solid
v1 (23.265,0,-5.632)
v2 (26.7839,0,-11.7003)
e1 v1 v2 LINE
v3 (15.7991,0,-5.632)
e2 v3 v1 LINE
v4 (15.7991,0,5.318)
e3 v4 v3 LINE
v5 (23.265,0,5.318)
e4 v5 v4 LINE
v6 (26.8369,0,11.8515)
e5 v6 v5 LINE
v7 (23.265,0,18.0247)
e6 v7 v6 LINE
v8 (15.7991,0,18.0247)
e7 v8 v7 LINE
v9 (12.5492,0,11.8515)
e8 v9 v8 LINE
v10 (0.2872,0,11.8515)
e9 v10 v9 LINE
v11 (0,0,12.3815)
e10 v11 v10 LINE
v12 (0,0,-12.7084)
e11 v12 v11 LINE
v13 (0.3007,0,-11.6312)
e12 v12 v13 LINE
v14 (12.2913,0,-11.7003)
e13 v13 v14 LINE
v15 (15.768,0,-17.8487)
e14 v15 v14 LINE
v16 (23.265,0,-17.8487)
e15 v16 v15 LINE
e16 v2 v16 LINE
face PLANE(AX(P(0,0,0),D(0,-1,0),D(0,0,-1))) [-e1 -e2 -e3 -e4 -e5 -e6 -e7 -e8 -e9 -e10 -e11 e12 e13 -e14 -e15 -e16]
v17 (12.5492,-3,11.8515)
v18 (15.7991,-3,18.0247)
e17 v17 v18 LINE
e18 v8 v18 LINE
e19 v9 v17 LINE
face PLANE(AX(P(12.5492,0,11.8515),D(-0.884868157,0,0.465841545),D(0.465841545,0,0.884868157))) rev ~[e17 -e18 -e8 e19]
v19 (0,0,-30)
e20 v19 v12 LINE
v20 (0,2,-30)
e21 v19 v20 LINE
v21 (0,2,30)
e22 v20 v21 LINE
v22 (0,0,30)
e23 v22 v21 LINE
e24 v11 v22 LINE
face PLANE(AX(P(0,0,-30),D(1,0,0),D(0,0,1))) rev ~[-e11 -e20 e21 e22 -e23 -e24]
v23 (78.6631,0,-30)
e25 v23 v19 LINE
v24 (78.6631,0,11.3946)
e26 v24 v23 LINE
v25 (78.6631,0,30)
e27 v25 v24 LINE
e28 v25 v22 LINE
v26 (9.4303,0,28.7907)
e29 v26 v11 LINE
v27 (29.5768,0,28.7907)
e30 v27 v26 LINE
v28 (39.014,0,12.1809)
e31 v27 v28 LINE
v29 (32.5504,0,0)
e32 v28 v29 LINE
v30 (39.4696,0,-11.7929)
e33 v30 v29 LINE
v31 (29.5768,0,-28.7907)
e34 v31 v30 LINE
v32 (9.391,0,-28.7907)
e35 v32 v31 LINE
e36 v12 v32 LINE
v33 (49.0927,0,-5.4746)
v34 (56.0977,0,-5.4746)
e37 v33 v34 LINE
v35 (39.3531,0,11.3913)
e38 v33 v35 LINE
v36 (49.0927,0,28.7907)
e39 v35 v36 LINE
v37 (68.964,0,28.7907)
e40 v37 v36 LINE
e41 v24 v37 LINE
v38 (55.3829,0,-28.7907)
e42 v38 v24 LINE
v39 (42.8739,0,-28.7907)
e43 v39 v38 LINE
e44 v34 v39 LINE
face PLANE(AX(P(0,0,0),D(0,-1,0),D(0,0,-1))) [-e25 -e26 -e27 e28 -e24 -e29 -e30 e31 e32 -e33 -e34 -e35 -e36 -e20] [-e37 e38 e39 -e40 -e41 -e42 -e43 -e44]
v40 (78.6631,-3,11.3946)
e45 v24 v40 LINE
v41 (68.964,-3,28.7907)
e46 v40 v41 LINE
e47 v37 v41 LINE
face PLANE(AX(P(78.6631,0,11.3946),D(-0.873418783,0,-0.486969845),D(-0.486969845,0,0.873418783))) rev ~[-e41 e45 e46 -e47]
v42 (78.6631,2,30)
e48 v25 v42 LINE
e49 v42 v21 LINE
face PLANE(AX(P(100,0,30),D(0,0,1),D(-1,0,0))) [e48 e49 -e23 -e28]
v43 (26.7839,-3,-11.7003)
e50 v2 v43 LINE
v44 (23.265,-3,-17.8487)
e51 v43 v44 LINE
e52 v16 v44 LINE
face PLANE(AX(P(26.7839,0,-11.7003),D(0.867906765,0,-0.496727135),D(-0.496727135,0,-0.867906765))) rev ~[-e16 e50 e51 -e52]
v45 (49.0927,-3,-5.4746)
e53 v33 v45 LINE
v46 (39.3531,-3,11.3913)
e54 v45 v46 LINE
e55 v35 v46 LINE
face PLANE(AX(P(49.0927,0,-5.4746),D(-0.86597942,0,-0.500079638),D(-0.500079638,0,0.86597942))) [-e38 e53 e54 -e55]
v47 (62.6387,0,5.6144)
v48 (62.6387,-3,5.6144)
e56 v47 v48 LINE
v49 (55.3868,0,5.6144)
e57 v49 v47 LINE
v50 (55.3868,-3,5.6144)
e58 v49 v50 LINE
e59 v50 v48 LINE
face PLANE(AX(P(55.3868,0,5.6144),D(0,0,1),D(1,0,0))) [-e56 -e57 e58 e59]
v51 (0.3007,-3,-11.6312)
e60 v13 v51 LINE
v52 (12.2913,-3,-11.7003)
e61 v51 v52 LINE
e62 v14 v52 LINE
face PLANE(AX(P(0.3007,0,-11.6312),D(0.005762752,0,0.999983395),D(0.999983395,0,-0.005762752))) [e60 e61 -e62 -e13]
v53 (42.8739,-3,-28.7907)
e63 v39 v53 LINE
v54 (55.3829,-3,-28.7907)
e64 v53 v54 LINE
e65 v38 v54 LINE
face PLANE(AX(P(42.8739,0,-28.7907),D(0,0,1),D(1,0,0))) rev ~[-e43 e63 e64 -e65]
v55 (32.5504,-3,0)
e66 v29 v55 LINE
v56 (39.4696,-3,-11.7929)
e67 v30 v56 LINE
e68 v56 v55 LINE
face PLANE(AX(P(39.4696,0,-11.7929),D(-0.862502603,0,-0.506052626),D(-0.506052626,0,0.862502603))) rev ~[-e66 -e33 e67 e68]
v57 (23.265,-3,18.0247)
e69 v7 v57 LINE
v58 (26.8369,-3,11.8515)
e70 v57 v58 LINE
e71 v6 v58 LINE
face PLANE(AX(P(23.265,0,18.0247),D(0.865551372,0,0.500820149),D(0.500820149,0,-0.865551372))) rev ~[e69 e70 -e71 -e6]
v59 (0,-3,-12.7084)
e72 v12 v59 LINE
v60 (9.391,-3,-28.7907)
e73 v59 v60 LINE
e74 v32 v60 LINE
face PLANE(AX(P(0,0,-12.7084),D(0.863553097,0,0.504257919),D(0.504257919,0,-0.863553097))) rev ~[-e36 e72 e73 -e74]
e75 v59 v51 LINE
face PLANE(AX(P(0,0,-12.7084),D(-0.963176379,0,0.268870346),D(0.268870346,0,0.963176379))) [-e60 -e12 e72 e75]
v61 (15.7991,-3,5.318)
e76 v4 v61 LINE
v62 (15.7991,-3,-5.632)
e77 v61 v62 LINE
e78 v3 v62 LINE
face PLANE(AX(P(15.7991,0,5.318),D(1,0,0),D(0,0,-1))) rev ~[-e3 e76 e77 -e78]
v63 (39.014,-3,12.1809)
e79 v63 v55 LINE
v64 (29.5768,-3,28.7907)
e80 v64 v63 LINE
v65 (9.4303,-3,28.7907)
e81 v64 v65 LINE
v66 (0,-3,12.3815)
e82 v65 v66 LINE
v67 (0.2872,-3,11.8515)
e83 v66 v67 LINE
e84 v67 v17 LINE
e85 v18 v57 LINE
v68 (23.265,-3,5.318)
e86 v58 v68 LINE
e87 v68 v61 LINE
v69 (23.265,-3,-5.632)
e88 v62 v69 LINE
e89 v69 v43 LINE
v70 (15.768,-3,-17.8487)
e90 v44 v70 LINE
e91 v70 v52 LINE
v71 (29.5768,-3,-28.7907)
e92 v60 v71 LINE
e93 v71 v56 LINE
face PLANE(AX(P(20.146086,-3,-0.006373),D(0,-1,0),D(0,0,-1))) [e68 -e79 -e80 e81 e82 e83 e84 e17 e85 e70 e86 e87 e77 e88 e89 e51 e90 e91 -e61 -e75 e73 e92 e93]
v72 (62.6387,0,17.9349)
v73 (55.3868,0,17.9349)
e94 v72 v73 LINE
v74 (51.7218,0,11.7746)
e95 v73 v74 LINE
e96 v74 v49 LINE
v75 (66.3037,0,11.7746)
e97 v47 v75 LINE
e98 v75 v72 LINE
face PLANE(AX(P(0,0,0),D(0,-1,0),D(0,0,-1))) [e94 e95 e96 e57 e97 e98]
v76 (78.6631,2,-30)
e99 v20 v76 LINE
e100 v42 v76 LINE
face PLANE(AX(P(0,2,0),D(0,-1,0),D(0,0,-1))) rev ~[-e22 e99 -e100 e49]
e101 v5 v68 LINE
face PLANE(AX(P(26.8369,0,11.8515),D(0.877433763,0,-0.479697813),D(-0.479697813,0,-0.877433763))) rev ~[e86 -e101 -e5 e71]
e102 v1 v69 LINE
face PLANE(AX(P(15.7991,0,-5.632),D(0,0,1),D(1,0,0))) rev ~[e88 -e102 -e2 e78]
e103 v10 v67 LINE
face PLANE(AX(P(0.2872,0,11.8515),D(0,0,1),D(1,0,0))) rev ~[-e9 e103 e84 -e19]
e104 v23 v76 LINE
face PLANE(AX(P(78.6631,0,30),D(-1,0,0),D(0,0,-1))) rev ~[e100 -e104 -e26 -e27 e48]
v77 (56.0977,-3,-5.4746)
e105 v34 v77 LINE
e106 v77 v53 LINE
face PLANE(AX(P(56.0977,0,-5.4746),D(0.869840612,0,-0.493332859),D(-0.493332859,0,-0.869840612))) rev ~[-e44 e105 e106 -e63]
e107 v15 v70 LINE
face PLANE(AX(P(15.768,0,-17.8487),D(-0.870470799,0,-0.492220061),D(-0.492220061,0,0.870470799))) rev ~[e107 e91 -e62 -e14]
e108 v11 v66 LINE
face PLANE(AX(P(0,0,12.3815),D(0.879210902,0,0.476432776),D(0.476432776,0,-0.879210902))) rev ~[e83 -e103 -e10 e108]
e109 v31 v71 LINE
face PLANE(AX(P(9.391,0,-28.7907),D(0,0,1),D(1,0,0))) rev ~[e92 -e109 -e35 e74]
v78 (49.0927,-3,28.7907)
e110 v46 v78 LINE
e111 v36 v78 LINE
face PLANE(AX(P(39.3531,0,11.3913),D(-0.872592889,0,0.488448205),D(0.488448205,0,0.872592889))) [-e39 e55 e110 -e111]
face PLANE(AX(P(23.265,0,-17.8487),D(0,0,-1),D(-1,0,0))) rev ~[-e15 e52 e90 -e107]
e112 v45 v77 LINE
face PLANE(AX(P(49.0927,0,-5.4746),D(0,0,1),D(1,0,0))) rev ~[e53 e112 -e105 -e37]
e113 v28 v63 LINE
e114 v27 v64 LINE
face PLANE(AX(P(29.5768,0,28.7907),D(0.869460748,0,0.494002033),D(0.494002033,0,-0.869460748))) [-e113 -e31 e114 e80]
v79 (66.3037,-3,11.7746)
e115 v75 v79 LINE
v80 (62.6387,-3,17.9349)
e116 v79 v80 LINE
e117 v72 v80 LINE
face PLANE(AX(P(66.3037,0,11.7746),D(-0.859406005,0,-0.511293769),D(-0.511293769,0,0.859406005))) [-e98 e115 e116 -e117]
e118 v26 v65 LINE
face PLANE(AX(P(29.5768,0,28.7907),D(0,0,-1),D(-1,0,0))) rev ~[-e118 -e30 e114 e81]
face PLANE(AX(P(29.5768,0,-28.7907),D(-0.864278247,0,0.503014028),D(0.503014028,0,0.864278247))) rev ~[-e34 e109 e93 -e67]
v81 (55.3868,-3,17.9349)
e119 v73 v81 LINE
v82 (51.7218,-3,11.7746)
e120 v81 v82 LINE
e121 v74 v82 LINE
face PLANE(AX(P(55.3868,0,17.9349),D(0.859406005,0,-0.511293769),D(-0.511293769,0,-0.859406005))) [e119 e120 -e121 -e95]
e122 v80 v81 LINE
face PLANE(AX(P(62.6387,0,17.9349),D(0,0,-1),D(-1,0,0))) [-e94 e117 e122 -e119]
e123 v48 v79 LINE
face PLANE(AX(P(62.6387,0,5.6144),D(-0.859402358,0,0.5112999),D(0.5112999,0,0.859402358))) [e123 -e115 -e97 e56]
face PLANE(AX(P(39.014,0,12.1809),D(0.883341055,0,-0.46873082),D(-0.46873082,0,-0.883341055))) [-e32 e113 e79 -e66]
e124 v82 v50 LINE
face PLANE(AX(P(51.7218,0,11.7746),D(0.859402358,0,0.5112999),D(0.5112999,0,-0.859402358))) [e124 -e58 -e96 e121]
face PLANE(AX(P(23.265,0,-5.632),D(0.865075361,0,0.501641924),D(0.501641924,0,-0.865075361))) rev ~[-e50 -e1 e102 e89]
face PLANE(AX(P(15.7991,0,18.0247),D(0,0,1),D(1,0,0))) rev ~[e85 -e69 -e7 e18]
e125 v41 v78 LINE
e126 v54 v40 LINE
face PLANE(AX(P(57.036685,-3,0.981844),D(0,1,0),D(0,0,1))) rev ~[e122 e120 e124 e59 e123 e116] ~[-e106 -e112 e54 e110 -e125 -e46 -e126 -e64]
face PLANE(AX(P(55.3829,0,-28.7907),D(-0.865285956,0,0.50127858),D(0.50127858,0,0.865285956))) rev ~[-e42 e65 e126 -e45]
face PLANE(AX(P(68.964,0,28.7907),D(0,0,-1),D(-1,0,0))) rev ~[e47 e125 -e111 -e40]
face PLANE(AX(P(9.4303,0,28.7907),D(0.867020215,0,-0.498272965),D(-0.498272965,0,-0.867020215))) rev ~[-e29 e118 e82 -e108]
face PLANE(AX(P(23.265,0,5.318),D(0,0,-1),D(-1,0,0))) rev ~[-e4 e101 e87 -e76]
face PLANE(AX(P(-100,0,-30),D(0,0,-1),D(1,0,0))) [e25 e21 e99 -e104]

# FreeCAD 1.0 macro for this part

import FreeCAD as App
import Part
import Sketcher

doc = App.newDocument("Part")
params = doc.addObject("Spreadsheet::Sheet", "Params")
for row, (alias, value) in enumerate([
    ("sketch1_height", "60 mm"),
    ("pad1_length", "2 mm"),
    ("sketch2_height", "10.95 mm"),
    ("sketch2_length", "0.48 mm"),
    ("sketch2_length2", "19.94 mm"),
    ("sketch2_length3", "13.0199 mm"),
    ("pad2_length", "3 mm"),
    ("sketch3_width", "100 mm"),
    ("sketch3_height", "60 mm"),
    ("pocket1_length", "52.8721 mm"),
    ("sketch4_width", "100 mm"),
    ("sketch4_height", "60 mm"),
    ("pocket2_length", "13.1606 mm"),
], start=1):
    params.set(f"A{row}", alias)
    params.set(f"B{row}", "=" + value)
    params.setAlias(f"B{row}", alias)

body = doc.addObject("PartDesign::Body", "Body")

# Sketch on XZ plane
sketch1 = doc.addObject("Sketcher::SketchObject", "Sketch")
body.addObject(sketch1)
sketch1.AttachmentSupport = (doc.XZ_Plane, [""])
sketch1.MapMode = "FlatFace"
sketch1.addGeometry(Part.LineSegment(App.Vector(-100, 30, 0), App.Vector(-100, -30, 0)), False)
sketch1.addGeometry(Part.LineSegment(App.Vector(-100, -30, 0), App.Vector(100, -30, 0)), False)
sketch1.addGeometry(Part.LineSegment(App.Vector(100, -30, 0), App.Vector(100, 30, 0)), False)
sketch1.addGeometry(Part.LineSegment(App.Vector(100, 30, 0), App.Vector(-100, 30, 0)), False)
sketch1.addConstraint(Sketcher.Constraint("Coincident", 0, 2, 1, 1))
sketch1.addConstraint(Sketcher.Constraint("Coincident", 1, 2, 2, 1))
sketch1.addConstraint(Sketcher.Constraint("Coincident", 2, 2, 3, 1))
sketch1.addConstraint(Sketcher.Constraint("Coincident", 3, 2, 0, 1))
sketch1.addConstraint(Sketcher.Constraint("Vertical", 0))
sketch1.addConstraint(Sketcher.Constraint("Horizontal", 1))
sketch1.addConstraint(Sketcher.Constraint("Vertical", 2))
sketch1.addConstraint(Sketcher.Constraint("Horizontal", 3))
sketch1.addConstraint(Sketcher.Constraint("Symmetric", 0, 2, 2, 2, -1, 1))
sketch1.addConstraint(Sketcher.Constraint("DistanceX", 0, 2, -1, 1, 100.0))
sketch1.addConstraint(Sketcher.Constraint("DistanceY", 0, 2, 0, 1, 60.0))
sketch1.setExpression("Constraints[10]", "Params.sketch1_height")
pad1 = doc.addObject("PartDesign::Pad", "Pad")
body.addObject(pad1)
pad1.Profile = sketch1
pad1.setExpression("Length", "Params.pad1_length")
pad1.Reversed = True

# Sketch on XZ plane
sketch2 = doc.addObject("Sketcher::SketchObject", "Sketch001")
body.addObject(sketch2)
sketch2.AttachmentSupport = (doc.XZ_Plane, [""])
sketch2.MapMode = "FlatFace"
sketch2.addGeometry(Part.LineSegment(App.Vector(-45.6448, 0, 0), App.Vector(-39.6222, 11.5432, 0)), False)
sketch2.addGeometry(Part.LineSegment(App.Vector(-39.6222, 11.5432, 0), App.Vector(-48.7647, 28.7907, 0)), False)
sketch2.addGeometry(Part.LineSegment(App.Vector(-48.7647, 28.7907, 0), App.Vector(-68.9181, 28.7907, 0)), False)
sketch2.addGeometry(Part.LineSegment(App.Vector(-68.9181, 28.7907, 0), App.Vector(-78.6631, 12.1124, 0)), False)
sketch2.addGeometry(Part.LineSegment(App.Vector(-78.6631, 12.1124, 0), App.Vector(-65.8971, 12.1124, 0)), False)
sketch2.addGeometry(Part.LineSegment(App.Vector(-65.8971, 12.1124, 0), App.Vector(-62.8688, 18.0634, 0)), False)
sketch2.addGeometry(Part.LineSegment(App.Vector(-62.8688, 18.0634, 0), App.Vector(-55.6447, 18.0634, 0)), False)
sketch2.addGeometry(Part.LineSegment(App.Vector(-55.6447, 18.0634, 0), App.Vector(-51.8394, 12.1124, 0)), False)
sketch2.addGeometry(Part.LineSegment(App.Vector(-51.8394, 12.1124, 0), App.Vector(-55.6447, 5.4911, 0)), False)
sketch2.addGeometry(Part.LineSegment(App.Vector(-55.6447, 5.4911, 0), App.Vector(-62.8688, 5.4911, 0)), False)
sketch2.addGeometry(Part.LineSegment(App.Vector(-62.8688, 5.4911, 0), App.Vector(-62.8688, -5.6236, 0)), False)
sketch2.addGeometry(Part.LineSegment(App.Vector(-62.8688, -5.6236, 0), App.Vector(-55.2147, -5.6236, 0)), False)
sketch2.addGeometry(Part.LineSegment(App.Vector(-55.2147, -5.6236, 0), App.Vector(-51.8394, -11.6625, 0)), False)
sketch2.addGeometry(Part.LineSegment(App.Vector(-51.8394, -11.6625, 0), App.Vector(-55.2147, -18.0171, 0)), False)
sketch2.addGeometry(Part.LineSegment(App.Vector(-55.2147, -18.0171, 0), App.Vector(-62.8688, -18.0171, 0)), False)
sketch2.addGeometry(Part.LineSegment(App.Vector(-62.8688, -18.0171, 0), App.Vector(-65.8971, -11.6625, 0)), False)
sketch2.addGeometry(Part.LineSegment(App.Vector(-65.8971, -11.6625, 0), App.Vector(-78.6631, -11.6625, 0)), False)
sketch2.addGeometry(Part.LineSegment(App.Vector(-78.6631, -11.6625, 0), App.Vector(-68.9922, -28.7907, 0)), False)
sketch2.addGeometry(Part.LineSegment(App.Vector(-68.9922, -28.7907, 0), App.Vector(-48.7647, -28.7907, 0)), False)
sketch2.addGeometry(Part.LineSegment(App.Vector(-48.7647, -28.7907, 0), App.Vector(-39.6222, -12.3974, 0)), False)
sketch2.addGeometry(Part.LineSegment(App.Vector(-39.6222, -12.3974, 0), App.Vector(-45.6448, 0, 0)), False)
sketch2.addGeometry(Part.LineSegment(App.Vector(-9.9734, 28.7907, 0), App.Vector(-29.8239, 28.7907, 0)), False)
sketch2.addGeometry(Part.LineSegment(App.Vector(-29.8239, 28.7907, 0), App.Vector(-39.0136, 11.3404, 0)), False)
sketch2.addGeometry(Part.LineSegment(App.Vector(-39.0136, 11.3404, 0), App.Vector(-27.2051, 11.3404, 0)), False)
sketch2.addGeometry(Part.LineSegment(App.Vector(-27.2051, 11.3404, 0), App.Vector(-23.5794, 17.7709, 0)), False)
sketch2.addGeometry(Part.LineSegment(App.Vector(-23.5794, 17.7709, 0), App.Vector(-16.2069, 17.7709, 0)), False)
sketch2.addGeometry(Part.LineSegment(App.Vector(-16.2069, 17.7709, 0), App.Vector(-12.7725, 11.3404, 0)), False)
sketch2.addGeometry(Part.LineSegment(App.Vector(-12.7725, 11.3404, 0), App.Vector(-16.2069, 5.3584, 0)), False)
sketch2.addGeometry(Part.LineSegment(App.Vector(-16.2069, 5.3584, 0), App.Vector(-23.5794, 5.3584, 0)), False)
sketch2.addGeometry(Part.LineSegment(App.Vector(-23.5794, 5.3584, 0), App.Vector(-23.5794, -5.3744, 0)), False)
sketch2.addGeometry(Part.LineSegment(App.Vector(-23.5794, -5.3744, 0), App.Vector(-16.2069, -5.3744, 0)), False)
sketch2.addGeometry(Part.LineSegment(App.Vector(-16.2069, -5.3744, 0), App.Vector(-12.7725, -11.9215, 0)), False)
sketch2.addGeometry(Part.LineSegment(App.Vector(-12.7725, -11.9215, 0), App.Vector(-16.2069, -18.0364, 0)), False)
sketch2.addGeometry(Part.LineSegment(App.Vector(-16.2069, -18.0364, 0), App.Vector(-23.5794, -18.0364, 0)), False)
sketch2.addGeometry(Part.LineSegment(App.Vector(-23.5794, -18.0364, 0), App.Vector(-27.2051, -11.9215, 0)), False)
sketch2.addGeometry(Part.LineSegment(App.Vector(-27.2051, -11.9215, 0), App.Vector(-39.0832, -11.9215, 0)), False)
sketch2.addGeometry(Part.LineSegment(App.Vector(-39.0832, -11.9215, 0), App.Vector(-39.0211, -12.3974, 0)), False)
sketch2.addGeometry(Part.LineSegment(App.Vector(-39.0211, -12.3974, 0), App.Vector(-29.8416, -28.7907, 0)), False)
sketch2.addGeometry(Part.LineSegment(App.Vector(-29.8416, -28.7907, 0), App.Vector(-9.9734, -28.7907, 0)), False)
sketch2.addGeometry(Part.LineSegment(App.Vector(-9.9734, -28.7907, 0), App.Vector(0, -11.7929, 0)), False)
sketch2.addGeometry(Part.LineSegment(App.Vector(0, -11.7929, 0), App.Vector(-6.8407, 0, 0)), False)
sketch2.addGeometry(Part.LineSegment(App.Vector(-6.8407, 0, 0), App.Vector(0, 11.8515, 0)), False)
sketch2.addGeometry(Part.LineSegment(App.Vector(0, 11.8515, 0), App.Vector(-9.9734, 28.7907, 0)), False)
sketch2.addGeometry(Part.LineSegment(App.Vector(29.5768, 28.7907, 0), App.Vector(9.4303, 28.7907, 0)), False)
sketch2.addGeometry(Part.LineSegment(App.Vector(9.4303, 28.7907, 0), App.Vector(0, 12.3815, 0)), False)
sketch2.addGeometry(Part.LineSegment(App.Vector(0, 12.3815, 0), App.Vector(0.2872, 11.8515, 0)), False)
sketch2.addGeometry(Part.LineSegment(App.Vector(0.2872, 11.8515, 0), App.Vector(12.5492, 11.8515, 0)), False)
sketch2.addGeometry(Part.LineSegment(App.Vector(12.5492, 11.8515, 0), App.Vector(15.7991, 18.0247, 0)), False)
sketch2.addGeometry(Part.LineSegment(App.Vector(15.7991, 18.0247, 0), App.Vector(23.265, 18.0247, 0)), False)
sketch2.addGeometry(Part.LineSegment(App.Vector(23.265, 18.0247, 0), App.Vector(26.8369, 11.8515, 0)), False)
sketch2.addGeometry(Part.LineSegment(App.Vector(26.8369, 11.8515, 0), App.Vector(23.265, 5.318, 0)), False)
sketch2.addGeometry(Part.LineSegment(App.Vector(23.265, 5.318, 0), App.Vector(15.7991, 5.318, 0)), False)
sketch2.addGeometry(Part.LineSegment(App.Vector(15.7991, 5.318, 0), App.Vector(15.7991, -5.632, 0)), False)
sketch2.addGeometry(Part.LineSegment(App.Vector(15.7991, -5.632, 0), App.Vector(23.265, -5.632, 0)), False)
sketch2.addGeometry(Part.LineSegment(App.Vector(23.265, -5.632, 0), App.Vector(26.7839, -11.7003, 0)), False)
sketch2.addGeometry(Part.LineSegment(App.Vector(26.7839, -11.7003, 0), App.Vector(23.265, -17.8487, 0)), False)
sketch2.addGeometry(Part.LineSegment(App.Vector(23.265, -17.8487, 0), App.Vector(15.768, -17.8487, 0)), False)
sketch2.addGeometry(Part.LineSegment(App.Vector(15.768, -17.8487, 0), App.Vector(12.2913, -11.7003, 0)), False)
sketch2.addGeometry(Part.LineSegment(App.Vector(12.2913, -11.7003, 0), App.Vector(0.3007, -11.6312, 0)), False)
sketch2.addGeometry(Part.LineSegment(App.Vector(0.3007, -11.6312, 0), App.Vector(0, -12.7084, 0)), False)
sketch2.addGeometry(Part.LineSegment(App.Vector(0, -12.7084, 0), App.Vector(9.391, -28.7907, 0)), False)
sketch2.addGeometry(Part.LineSegment(App.Vector(9.391, -28.7907, 0), App.Vector(29.5768, -28.7907, 0)), False)
sketch2.addGeometry(Part.LineSegment(App.Vector(29.5768, -28.7907, 0), App.Vector(39.4696, -11.7929, 0)), False)
sketch2.addGeometry(Part.LineSegment(App.Vector(39.4696, -11.7929, 0), App.Vector(32.5504, 0, 0)), False)
sketch2.addGeometry(Part.LineSegment(App.Vector(32.5504, 0, 0), App.Vector(39.014, 12.1809, 0)), False)
sketch2.addGeometry(Part.LineSegment(App.Vector(39.014, 12.1809, 0), App.Vector(29.5768, 28.7907, 0)), False)
sketch2.addGeometry(Part.LineSegment(App.Vector(49.0927, 28.7907, 0), App.Vector(39.3531, 11.3913, 0)), False)
sketch2.addGeometry(Part.LineSegment(App.Vector(39.3531, 11.3913, 0), App.Vector(49.0927, -5.4746, 0)), False)
sketch2.addGeometry(Part.LineSegment(App.Vector(49.0927, -5.4746, 0), App.Vector(56.0977, -5.4746, 0)), False)
sketch2.addGeometry(Part.LineSegment(App.Vector(56.0977, -5.4746, 0), App.Vector(42.8739, -28.7907, 0)), False)
sketch2.addGeometry(Part.LineSegment(App.Vector(42.8739, -28.7907, 0), App.Vector(55.3829, -28.7907, 0)), False)
sketch2.addGeometry(Part.LineSegment(App.Vector(55.3829, -28.7907, 0), App.Vector(78.6631, 11.3946, 0)), False)
sketch2.addGeometry(Part.LineSegment(App.Vector(78.6631, 11.3946, 0), App.Vector(68.964, 28.7907, 0)), False)
sketch2.addGeometry(Part.LineSegment(App.Vector(68.964, 28.7907, 0), App.Vector(49.0927, 28.7907, 0)), False)
sketch2.addGeometry(Part.LineSegment(App.Vector(55.3868, 5.6144, 0), App.Vector(51.7218, 11.7746, 0)), False)
sketch2.addGeometry(Part.LineSegment(App.Vector(51.7218, 11.7746, 0), App.Vector(55.3868, 17.9349, 0)), False)
sketch2.addGeometry(Part.LineSegment(App.Vector(55.3868, 17.9349, 0), App.Vector(62.6387, 17.9349, 0)), False)
sketch2.addGeometry(Part.LineSegment(App.Vector(62.6387, 17.9349, 0), App.Vector(66.3037, 11.7746, 0)), False)
sketch2.addGeometry(Part.LineSegment(App.Vector(66.3037, 11.7746, 0), App.Vector(62.6387, 5.6144, 0)), False)
sketch2.addGeometry(Part.LineSegment(App.Vector(62.6387, 5.6144, 0), App.Vector(55.3868, 5.6144, 0)), False)
sketch2.addConstraint(Sketcher.Constraint("Coincident", 0, 2, 1, 1))
sketch2.addConstraint(Sketcher.Constraint("Coincident", 1, 2, 2, 1))
sketch2.addConstraint(Sketcher.Constraint("Coincident", 2, 2, 3, 1))
sketch2.addConstraint(Sketcher.Constraint("Coincident", 3, 2, 4, 1))
sketch2.addConstraint(Sketcher.Constraint("Coincident", 4, 2, 5, 1))
sketch2.addConstraint(Sketcher.Constraint("Coincident", 5, 2, 6, 1))
sketch2.addConstraint(Sketcher.Constraint("Coincident", 6, 2, 7, 1))
sketch2.addConstraint(Sketcher.Constraint("Coincident", 7, 2, 8, 1))
sketch2.addConstraint(Sketcher.Constraint("Coincident", 8, 2, 9, 1))
sketch2.addConstraint(Sketcher.Constraint("Coincident", 9, 2, 10, 1))
sketch2.addConstraint(Sketcher.Constraint("Coincident", 10, 2, 11, 1))
sketch2.addConstraint(Sketcher.Constraint("Coincident", 11, 2, 12, 1))
sketch2.addConstraint(Sketcher.Constraint("Coincident", 12, 2, 13, 1))
sketch2.addConstraint(Sketcher.Constraint("Coincident", 13, 2, 14, 1))
sketch2.addConstraint(Sketcher.Constraint("Coincident", 14, 2, 15, 1))
sketch2.addConstraint(Sketcher.Constraint("Coincident", 15, 2, 16, 1))
sketch2.addConstraint(Sketcher.Constraint("Coincident", 16, 2, 17, 1))
sketch2.addConstraint(Sketcher.Constraint("Coincident", 17, 2, 18, 1))
sketch2.addConstraint(Sketcher.Constraint("Coincident", 18, 2, 19, 1))
sketch2.addConstraint(Sketcher.Constraint("Coincident", 19, 2, 20, 1))
sketch2.addConstraint(Sketcher.Constraint("Coincident", 20, 2, 0, 1))
sketch2.addConstraint(Sketcher.Constraint("Coincident", 21, 2, 22, 1))
sketch2.addConstraint(Sketcher.Constraint("Coincident", 22, 2, 23, 1))
sketch2.addConstraint(Sketcher.Constraint("Coincident", 23, 2, 24, 1))
sketch2.addConstraint(Sketcher.Constraint("Coincident", 24, 2, 25, 1))
sketch2.addConstraint(Sketcher.Constraint("Coincident", 25, 2, 26, 1))
sketch2.addConstraint(Sketcher.Constraint("Coincident", 26, 2, 27, 1))
sketch2.addConstraint(Sketcher.Constraint("Coincident", 27, 2, 28, 1))
sketch2.addConstraint(Sketcher.Constraint("Coincident", 28, 2, 29, 1))
sketch2.addConstraint(Sketcher.Constraint("Coincident", 29, 2, 30, 1))
sketch2.addConstraint(Sketcher.Constraint("Coincident", 30, 2, 31, 1))
sketch2.addConstraint(Sketcher.Constraint("Coincident", 31, 2, 32, 1))
sketch2.addConstraint(Sketcher.Constraint("Coincident", 32, 2, 33, 1))
sketch2.addConstraint(Sketcher.Constraint("Coincident", 33, 2, 34, 1))
sketch2.addConstraint(Sketcher.Constraint("Coincident", 34, 2, 35, 1))
sketch2.addConstraint(Sketcher.Constraint("Coincident", 35, 2, 36, 1))
sketch2.addConstraint(Sketcher.Constraint("Coincident", 36, 2, 37, 1))
sketch2.addConstraint(Sketcher.Constraint("Coincident", 37, 2, 38, 1))
sketch2.addConstraint(Sketcher.Constraint("Coincident", 38, 2, 39, 1))
sketch2.addConstraint(Sketcher.Constraint("Coincident", 39, 2, 40, 1))
sketch2.addConstraint(Sketcher.Constraint("Coincident", 40, 2, 41, 1))
sketch2.addConstraint(Sketcher.Constraint("Coincident", 41, 2, 42, 1))
sketch2.addConstraint(Sketcher.Constraint("Coincident", 42, 2, 21, 1))
sketch2.addConstraint(Sketcher.Constraint("Coincident", 43, 2, 44, 1))
sketch2.addConstraint(Sketcher.Constraint("Coincident", 44, 2, 45, 1))
sketch2.addConstraint(Sketcher.Constraint("Coincident", 45, 2, 46, 1))
sketch2.addConstraint(Sketcher.Constraint("Coincident", 46, 2, 47, 1))
sketch2.addConstraint(Sketcher.Constraint("Coincident", 47, 2, 48, 1))
sketch2.addConstraint(Sketcher.Constraint("Coincident", 48, 2, 49, 1))
sketch2.addConstraint(Sketcher.Constraint("Coincident", 49, 2, 50, 1))
sketch2.addConstraint(Sketcher.Constraint("Coincident", 50, 2, 51, 1))
sketch2.addConstraint(Sketcher.Constraint("Coincident", 51, 2, 52, 1))
sketch2.addConstraint(Sketcher.Constraint("Coincident", 52, 2, 53, 1))
sketch2.addConstraint(Sketcher.Constraint("Coincident", 53, 2, 54, 1))
sketch2.addConstraint(Sketcher.Constraint("Coincident", 54, 2, 55, 1))
sketch2.addConstraint(Sketcher.Constraint("Coincident", 55, 2, 56, 1))
sketch2.addConstraint(Sketcher.Constraint("Coincident", 56, 2, 57, 1))
sketch2.addConstraint(Sketcher.Constraint("Coincident", 57, 2, 58, 1))
sketch2.addConstraint(Sketcher.Constraint("Coincident", 58, 2, 59, 1))
sketch2.addConstraint(Sketcher.Constraint("Coincident", 59, 2, 60, 1))
sketch2.addConstraint(Sketcher.Constraint("Coincident", 60, 2, 61, 1))
sketch2.addConstraint(Sketcher.Constraint("Coincident", 61, 2, 62, 1))
sketch2.addConstraint(Sketcher.Constraint("Coincident", 62, 2, 63, 1))
sketch2.addConstraint(Sketcher.Constraint("Coincident", 63, 2, 64, 1))
sketch2.addConstraint(Sketcher.Constraint("Coincident", 64, 2, 65, 1))
sketch2.addConstraint(Sketcher.Constraint("Coincident", 65, 2, 43, 1))
sketch2.addConstraint(Sketcher.Constraint("Coincident", 66, 2, 67, 1))
sketch2.addConstraint(Sketcher.Constraint("Coincident", 67, 2, 68, 1))
sketch2.addConstraint(Sketcher.Constraint("Coincident", 68, 2, 69, 1))
sketch2.addConstraint(Sketcher.Constraint("Coincident", 69, 2, 70, 1))
sketch2.addConstraint(Sketcher.Constraint("Coincident", 70, 2, 71, 1))
sketch2.addConstraint(Sketcher.Constraint("Coincident", 71, 2, 72, 1))
sketch2.addConstraint(Sketcher.Constraint("Coincident", 72, 2, 73, 1))
sketch2.addConstraint(Sketcher.Constraint("Coincident", 73, 2, 66, 1))
sketch2.addConstraint(Sketcher.Constraint("Coincident", 74, 2, 75, 1))
sketch2.addConstraint(Sketcher.Constraint("Coincident", 75, 2, 76, 1))
sketch2.addConstraint(Sketcher.Constraint("Coincident", 76, 2, 77, 1))
sketch2.addConstraint(Sketcher.Constraint("Coincident", 77, 2, 78, 1))
sketch2.addConstraint(Sketcher.Constraint("Coincident", 78, 2, 79, 1))
sketch2.addConstraint(Sketcher.Constraint("Coincident", 79, 2, 74, 1))
sketch2.addConstraint(Sketcher.Constraint("Horizontal", 2))
sketch2.addConstraint(Sketcher.Constraint("Horizontal", 4))
sketch2.addConstraint(Sketcher.Constraint("Horizontal", 6))
sketch2.addConstraint(Sketcher.Constraint("Horizontal", 9))
sketch2.addConstraint(Sketcher.Constraint("Vertical", 10))
sketch2.addConstraint(Sketcher.Constraint("Horizontal", 11))
sketch2.addConstraint(Sketcher.Constraint("Horizontal", 14))
sketch2.addConstraint(Sketcher.Constraint("Horizontal", 16))
sketch2.addConstraint(Sketcher.Constraint("Horizontal", 18))
sketch2.addConstraint(Sketcher.Constraint("Horizontal", 21))
sketch2.addConstraint(Sketcher.Constraint("Horizontal", 23))
sketch2.addConstraint(Sketcher.Constraint("Horizontal", 25))
sketch2.addConstraint(Sketcher.Constraint("Horizontal", 28))
sketch2.addConstraint(Sketcher.Constraint("Vertical", 29))
sketch2.addConstraint(Sketcher.Constraint("Horizontal", 30))
sketch2.addConstraint(Sketcher.Constraint("Horizontal", 33))
sketch2.addConstraint(Sketcher.Constraint("Horizontal", 35))
sketch2.addConstraint(Sketcher.Constraint("Horizontal", 38))
sketch2.addConstraint(Sketcher.Constraint("Horizontal", 43))
sketch2.addConstraint(Sketcher.Constraint("Horizontal", 46))
sketch2.addConstraint(Sketcher.Constraint("Horizontal", 48))
sketch2.addConstraint(Sketcher.Constraint("Horizontal", 51))
sketch2.addConstraint(Sketcher.Constraint("Vertical", 52))
sketch2.addConstraint(Sketcher.Constraint("Horizontal", 53))
sketch2.addConstraint(Sketcher.Constraint("Horizontal", 56))
sketch2.addConstraint(Sketcher.Constraint("Horizontal", 61))
sketch2.addConstraint(Sketcher.Constraint("Horizontal", 68))
sketch2.addConstraint(Sketcher.Constraint("Horizontal", 70))
sketch2.addConstraint(Sketcher.Constraint("Horizontal", 73))
sketch2.addConstraint(Sketcher.Constraint("Horizontal", 76))
sketch2.addConstraint(Sketcher.Constraint("Horizontal", 79))
sketch2.addConstraint(Sketcher.Constraint("PointOnObject", 20, 2, -1))
sketch2.addConstraint(Sketcher.Constraint("PointOnObject", 39, 2, -2))
sketch2.addConstraint(Sketcher.Constraint("PointOnObject", 40, 2, -1))
sketch2.addConstraint(Sketcher.Constraint("PointOnObject", 41, 2, -2))
sketch2.addConstraint(Sketcher.Constraint("PointOnObject", 44, 2, -2))
sketch2.addConstraint(Sketcher.Constraint("PointOnObject", 59, 2, -2))
sketch2.addConstraint(Sketcher.Constraint("PointOnObject", 63, 2, -1))
sketch2.addConstraint(Sketcher.Constraint("DistanceY", 52, 2, 52, 1, 10.95))
sketch2.addConstraint(Sketcher.Constraint("Distance", 36, 0.48))
sketch2.addConstraint(Sketcher.Constraint("Distance", 66, 19.94))
sketch2.addConstraint(Sketcher.Constraint("DistanceX", 4, 1, 4, 2, 12.766))
sketch2.addConstraint(Sketcher.Constraint("DistanceX", 6, 1, 6, 2, 7.224))
sketch2.addConstraint(Sketcher.Constraint("DistanceX", 9, 2, 9, 1, 7.224))
sketch2.addConstraint(Sketcher.Constraint("DistanceX", 11, 1, 11, 2, 7.654))
sketch2.addConstraint(Sketcher.Constraint("DistanceX", 14, 2, 14, 1, 7.654))
sketch2.addConstraint(Sketcher.Constraint("DistanceX", 16, 2, 16, 1, 12.766))
sketch2.addConstraint(Sketcher.Constraint("DistanceX", 35, 2, 35, 1, 11.878))
sketch2.addConstraint(Sketcher.Constraint("DistanceX", 46, 1, 46, 2, 12.262))
sketch2.addConstraint(Sketcher.Constraint("DistanceX", 48, 1, 48, 2, 7.466))
sketch2.addConstraint(Sketcher.Constraint("DistanceX", 51, 2, 51, 1, 7.466))
sketch2.addConstraint(Sketcher.Constraint("DistanceX", 53, 1, 53, 2, 7.466))
sketch2.addConstraint(Sketcher.Constraint("DistanceX", 56, 2, 56, 1, 7.497))
sketch2.addConstraint(Sketcher.Constraint("DistanceX", 68, 1, 68, 2, 7.005))
sketch2.addConstraint(Sketcher.Constraint("DistanceX", 70, 1, 70, 2, 12.509))
sketch2.addConstraint(Sketcher.Constraint("DistanceX", 76, 1, 76, 2, 7.252))
sketch2.addConstraint(Sketcher.Constraint("DistanceX", 79, 2, 79, 1, 7.252))
sketch2.addConstraint(Sketcher.Constraint("Distance", 34, 7.109))
sketch2.addConstraint(Sketcher.Constraint("Distance", 41, 13.684))
sketch2.addConstraint(Sketcher.Constraint("Distance", 44, 18.926))
sketch2.addConstraint(Sketcher.Constraint("Distance", 49, 7.132))
sketch2.addConstraint(Sketcher.Constraint("Distance", 62, 19.667))
sketch2.addConstraint(Sketcher.Constraint("Distance", 63, 13.673))
sketch2.addConstraint(Sketcher.Constraint("Distance", 67, 19.476))
sketch2.addConstraint(Sketcher.Constraint("Distance", 69, 26.805))
sketch2.addConstraint(Sketcher.Constraint("Distance", 74, 7.168))
sketch2.addConstraint(Sketcher.Constraint("Distance", 75, 7.168))
sketch2.addConstraint(Sketcher.Constraint("Distance", 77, 7.168))
sketch2.addConstraint(Sketcher.Constraint("Distance", 78, 7.168))
sketch2.addConstraint(Sketcher.Constraint("DistanceX", 2, 2, 2, 1, 20.1534))
sketch2.addConstraint(Sketcher.Constraint("DistanceX", 18, 1, 18, 2, 20.2275))
sketch2.addConstraint(Sketcher.Constraint("DistanceX", 21, 2, 21, 1, 19.8505))
sketch2.addConstraint(Sketcher.Constraint("DistanceX", 23, 1, 23, 2, 11.8085))
sketch2.addConstraint(Sketcher.Constraint("DistanceX", 25, 1, 25, 2, 7.3725))
sketch2.addConstraint(Sketcher.Constraint("DistanceX", 28, 2, 28, 1, 7.3725))
sketch2.addConstraint(Sketcher.Constraint("DistanceX", 30, 1, 30, 2, 7.3725))
sketch2.addConstraint(Sketcher.Constraint("DistanceX", 33, 2, 33, 1, 7.3725))
sketch2.addConstraint(Sketcher.Constraint("DistanceX", 38, 1, 38, 2, 19.8682))
sketch2.addConstraint(Sketcher.Constraint("DistanceX", 43, 2, 43, 1, 20.1465))
sketch2.addConstraint(Sketcher.Constraint("DistanceX", 61, 1, 61, 2, 20.1858))
sketch2.addConstraint(Sketcher.Constraint("DistanceX", 73, 2, 73, 1, 19.8713))
sketch2.addConstraint(Sketcher.Constraint("DistanceY", 10, 2, 10, 1, 11.1147))
sketch2.addConstraint(Sketcher.Constraint("DistanceY", 29, 2, 29, 1, 10.7328))
sketch2.addConstraint(Sketcher.Constraint("DistanceX", 2, 2, -1, 1, 68.918))
sketch2.addConstraint(Sketcher.Constraint("DistanceX", 3, 2, -1, 1, 78.663))
sketch2.addConstraint(Sketcher.Constraint("DistanceY", -1, 1, 8, 2, 5.491))
sketch2.addConstraint(Sketcher.Constraint("DistanceY", 13, 2, -1, 1, 18.017))
sketch2.addConstraint(Sketcher.Constraint("DistanceX", 15, 2, -1, 1, 65.897))
sketch2.addConstraint(Sketcher.Constraint("DistanceX", 21, 2, -1, 1, 29.824))
sketch2.addConstraint(Sketcher.Constraint("DistanceX", 23, 2, -1, 1, 27.205))
sketch2.addConstraint(Sketcher.Constraint("DistanceY", -1, 1, 24, 2, 17.771))
sketch2.addConstraint(Sketcher.Constraint("DistanceX", 25, 2, -1, 1, 16.207))
sketch2.addConstraint(Sketcher.Constraint("DistanceX", 27, 2, -1, 1, 16.207))
sketch2.addConstraint(Sketcher.Constraint("DistanceX", 32, 2, -1, 1, 16.207))
sketch2.addConstraint(Sketcher.Constraint("DistanceX", 34, 2, -1, 1, 27.205))
sketch2.addConstraint(Sketcher.Constraint("DistanceX", 36, 2, -1, 1, 39.021))
sketch2.addConstraint(Sketcher.Constraint("DistanceY", 39, 2, -1, 1, 11.793))
sketch2.addConstraint(Sketcher.Constraint("DistanceX", -1, 1, 47, 2, 15.799))
sketch2.addConstraint(Sketcher.Constraint("DistanceX", -1, 1, 49, 2, 26.837))
sketch2.addConstraint(Sketcher.Constraint("DistanceX", -1, 1, 50, 2, 23.265))
sketch2.addConstraint(Sketcher.Constraint("DistanceY", -1, 1, 50, 2, 5.318))
sketch2.addConstraint(Sketcher.Constraint("DistanceX", -1, 1, 54, 2, 26.784))
sketch2.addConstraint(Sketcher.Constraint("DistanceX", -1, 1, 55, 2, 23.265))
sketch2.addConstraint(Sketcher.Constraint("DistanceX", -1, 1, 60, 2, 9.391))
sketch2.addConstraint(Sketcher.Constraint("DistanceY", 62, 2, -1, 1, 11.793))
sketch2.addConstraint(Sketcher.Constraint("DistanceX", -1, 1, 64, 2, 39.014))
sketch2.addConstraint(Sketcher.Constraint("DistanceY", -1, 1, 64, 2, 12.181))
sketch2.addConstraint(Sketcher.Constraint("DistanceX", -1, 1, 66, 2, 39.353))
sketch2.addConstraint(Sketcher.Constraint("DistanceX", -1, 1, 69, 2, 42.874))
sketch2.addConstraint(Sketcher.Constraint("DistanceX", -1, 1, 71, 2, 78.663))
sketch2.addConstraint(Sketcher.Constraint("DistanceX", -1, 1, 72, 2, 68.964))
sketch2.addConstraint(Sketcher.Constraint("DistanceY", -1, 1, 75, 2, 17.935))
sketch2.addConstraint(Sketcher.Constraint("Distance", 0, 13.0199))
sketch2.addConstraint(Sketcher.Constraint("Distance", 1, 19.5208))
sketch2.addConstraint(Sketcher.Constraint("Distance", 3, 19.3166))
sketch2.addConstraint(Sketcher.Constraint("Distance", 5, 6.6772))
sketch2.addConstraint(Sketcher.Constraint("Distance", 7, 7.0636))
sketch2.addConstraint(Sketcher.Constraint("Distance", 8, 7.6369))
sketch2.addConstraint(Sketcher.Constraint("Distance", 12, 6.9182))
sketch2.addConstraint(Sketcher.Constraint("Distance", 13, 7.1954))
sketch2.addConstraint(Sketcher.Constraint("Distance", 15, 7.0393))
sketch2.addConstraint(Sketcher.Constraint("Distance", 17, 19.6698))
sketch2.addConstraint(Sketcher.Constraint("Distance", 19, 18.7703))
sketch2.addConstraint(Sketcher.Constraint("Distance", 20, 13.7829))
sketch2.addConstraint(Sketcher.Constraint("Distance", 22, 19.7222))
sketch2.addConstraint(Sketcher.Constraint("Distance", 24, 7.3822))
sketch2.addConstraint(Sketcher.Constraint("Distance", 26, 7.2902))
sketch2.addConstraint(Sketcher.Constraint("Distance", 27, 6.8978))
sketch2.addConstraint(Sketcher.Constraint("Distance", 31, 7.3932))
sketch2.addConstraint(Sketcher.Constraint("Distance", 32, 7.0134))
sketch2.addConstraint(Sketcher.Constraint("Distance", 37, 18.7884))
sketch2.addConstraint(Sketcher.Constraint("Distance", 39, 19.7077))
sketch2.addConstraint(Sketcher.Constraint("Distance", 40, 13.6333))
sketch2.addConstraint(Sketcher.Constraint("Distance", 45, 0.6028))
sketch2.addConstraint(Sketcher.Constraint("Distance", 47, 6.9764))
sketch2.addConstraint(Sketcher.Constraint("Distance", 50, 7.4461))
sketch2.addConstraint(Sketcher.Constraint("Distance", 54, 7.0148))
sketch2.addConstraint(Sketcher.Constraint("Distance", 55, 7.0842))
sketch2.addConstraint(Sketcher.Constraint("Distance", 57, 7.0633))
sketch2.addConstraint(Sketcher.Constraint("Distance", 58, 11.9908))
sketch2.addConstraint(Sketcher.Constraint("Distance", 59, 1.1184))
sketch2.addConstraint(Sketcher.Constraint("Distance", 60, 18.6234))
sketch2.addConstraint(Sketcher.Constraint("Distance", 64, 13.7896))
sketch2.addConstraint(Sketcher.Constraint("Distance", 65, 19.1036))
sketch2.addConstraint(Sketcher.Constraint("Distance", 71, 46.4416))
sketch2.addConstraint(Sketcher.Constraint("Distance", 72, 19.9172))
sketch2.addConstraint(Sketcher.Constraint("DistanceX", 0, 2, -1, 1, 39.6222))
sketch2.addConstraint(Sketcher.Constraint("DistanceY", -1, 1, 0, 2, 11.5432))
sketch2.addConstraint(Sketcher.Constraint("DistanceX", 5, 2, -1, 1, 62.8688))
sketch2.addConstraint(Sketcher.Constraint("DistanceX", 7, 2, -1, 1, 51.8394))
sketch2.addConstraint(Sketcher.Constraint("DistanceX", 12, 2, -1, 1, 51.8394))
sketch2.addConstraint(Sketcher.Constraint("DistanceX", 17, 2, -1, 1, 68.9922))
sketch2.addConstraint(Sketcher.Constraint("DistanceX", 26, 2, -1, 1, 12.7725))
sketch2.addConstraint(Sketcher.Constraint("DistanceX", 31, 2, -1, 1, 12.7725))
sketch2.addConstraint(Sketcher.Constraint("DistanceX", -1, 1, 43, 2, 9.4303))
sketch2.addConstraint(Sketcher.Constraint("DistanceX", -1, 1, 57, 2, 12.2913))
sketch2.addConstraint(Sketcher.Constraint("DistanceY", -1, 1, 66, 2, 11.3913))
sketch2.addConstraint(Sketcher.Constraint("DistanceX", -1, 1, 74, 2, 51.7218))
sketch2.addConstraint(Sketcher.Constraint("DistanceY", -1, 1, 74, 2, 11.7746))
sketch2.addConstraint(Sketcher.Constraint("DistanceX", -1, 1, 77, 2, 66.3037))
sketch2.setExpression("Constraints[118]", "Params.sketch2_height")
sketch2.setExpression("Constraints[119]", "Params.sketch2_length")
sketch2.setExpression("Constraints[120]", "Params.sketch2_length2")
sketch2.setExpression("Constraints[192]", "Params.sketch2_length3")
pad2 = doc.addObject("PartDesign::Pad", "Pad001")
body.addObject(pad2)
pad2.Profile = sketch2
pad2.setExpression("Length", "Params.pad2_length")

# Sketch on XZ plane
sketch3 = doc.addObject("Sketcher::SketchObject", "Sketch002")
body.addObject(sketch3)
sketch3.AttachmentSupport = (doc.XZ_Plane, [""])
sketch3.MapMode = "FlatFace"
sketch3.addGeometry(Part.LineSegment(App.Vector(-100, 30, 0), App.Vector(-100, -30, 0)), False)
sketch3.addGeometry(Part.LineSegment(App.Vector(-100, -30, 0), App.Vector(0, -30, 0)), False)
sketch3.addGeometry(Part.LineSegment(App.Vector(0, -30, 0), App.Vector(0, 30, 0)), False)
sketch3.addGeometry(Part.LineSegment(App.Vector(0, 30, 0), App.Vector(-100, 30, 0)), False)
sketch3.addGeometry(Part.LineSegment(App.Vector(79, -30, 0), App.Vector(100, -30, 0)), False)
sketch3.addGeometry(Part.LineSegment(App.Vector(100, -30, 0), App.Vector(100, 30, 0)), False)
sketch3.addGeometry(Part.LineSegment(App.Vector(100, 30, 0), App.Vector(79, 30, 0)), False)
sketch3.addGeometry(Part.LineSegment(App.Vector(79, 30, 0), App.Vector(79, -30, 0)), False)
sketch3.addConstraint(Sketcher.Constraint("Coincident", 0, 2, 1, 1))
sketch3.addConstraint(Sketcher.Constraint("Coincident", 1, 2, 2, 1))
sketch3.addConstraint(Sketcher.Constraint("Coincident", 2, 2, 3, 1))
sketch3.addConstraint(Sketcher.Constraint("Coincident", 3, 2, 0, 1))
sketch3.addConstraint(Sketcher.Constraint("Coincident", 4, 2, 5, 1))
sketch3.addConstraint(Sketcher.Constraint("Coincident", 5, 2, 6, 1))
sketch3.addConstraint(Sketcher.Constraint("Coincident", 6, 2, 7, 1))
sketch3.addConstraint(Sketcher.Constraint("Coincident", 7, 2, 4, 1))
sketch3.addConstraint(Sketcher.Constraint("Vertical", 0))
sketch3.addConstraint(Sketcher.Constraint("Horizontal", 1))
sketch3.addConstraint(Sketcher.Constraint("Vertical", 2))
sketch3.addConstraint(Sketcher.Constraint("Horizontal", 3))
sketch3.addConstraint(Sketcher.Constraint("Horizontal", 4))
sketch3.addConstraint(Sketcher.Constraint("Vertical", 5))
sketch3.addConstraint(Sketcher.Constraint("Horizontal", 6))
sketch3.addConstraint(Sketcher.Constraint("Vertical", 7))
sketch3.addConstraint(Sketcher.Constraint("Symmetric", 1, 2, 2, 2, -1, 1))
sketch3.addConstraint(Sketcher.Constraint("Symmetric", 3, 2, 4, 2, -1, 1))
sketch3.addConstraint(Sketcher.Constraint("Horizontal", 3, 2, 5, 2))
sketch3.addConstraint(Sketcher.Constraint("DistanceX", 1, 1, 1, 2, 100.0))
sketch3.addConstraint(Sketcher.Constraint("DistanceY", 0, 2, 0, 1, 60.0))
sketch3.addConstraint(Sketcher.Constraint("DistanceX", 4, 1, 4, 2, 21.337))
sketch3.setExpression("Constraints[19]", "Params.sketch3_width")
sketch3.setExpression("Constraints[20]", "Params.sketch3_height")
pocket1 = doc.addObject("PartDesign::Pocket", "Pocket")
body.addObject(pocket1)
pocket1.Profile = sketch3
pocket1.setExpression("Length", "Params.pocket1_length")
pocket1.Reversed = True

# Sketch on XZ plane
sketch4 = doc.addObject("Sketcher::SketchObject", "Sketch003")
body.addObject(sketch4)
sketch4.AttachmentSupport = (doc.XZ_Plane, [""])
sketch4.MapMode = "FlatFace"
sketch4.addGeometry(Part.LineSegment(App.Vector(0, 30, 0), App.Vector(-100, 30, 0)), False)
sketch4.addGeometry(Part.LineSegment(App.Vector(-100, 30, 0), App.Vector(-100, -30, 0)), False)
sketch4.addGeometry(Part.LineSegment(App.Vector(-100, -30, 0), App.Vector(0, -30, 0)), False)
sketch4.addGeometry(Part.LineSegment(App.Vector(0, -30, 0), App.Vector(0, 30, 0)), False)
sketch4.addGeometry(Part.LineSegment(App.Vector(79, -30, 0), App.Vector(100, -30, 0)), False)
sketch4.addGeometry(Part.LineSegment(App.Vector(100, -30, 0), App.Vector(100, 30, 0)), False)
sketch4.addGeometry(Part.LineSegment(App.Vector(100, 30, 0), App.Vector(79, 30, 0)), False)
sketch4.addGeometry(Part.LineSegment(App.Vector(79, 30, 0), App.Vector(79, -30, 0)), False)
sketch4.addConstraint(Sketcher.Constraint("Coincident", 0, 2, 1, 1))
sketch4.addConstraint(Sketcher.Constraint("Coincident", 1, 2, 2, 1))
sketch4.addConstraint(Sketcher.Constraint("Coincident", 2, 2, 3, 1))
sketch4.addConstraint(Sketcher.Constraint("Coincident", 3, 2, 0, 1))
sketch4.addConstraint(Sketcher.Constraint("Coincident", 4, 2, 5, 1))
sketch4.addConstraint(Sketcher.Constraint("Coincident", 5, 2, 6, 1))
sketch4.addConstraint(Sketcher.Constraint("Coincident", 6, 2, 7, 1))
sketch4.addConstraint(Sketcher.Constraint("Coincident", 7, 2, 4, 1))
sketch4.addConstraint(Sketcher.Constraint("Horizontal", 0))
sketch4.addConstraint(Sketcher.Constraint("Vertical", 1))
sketch4.addConstraint(Sketcher.Constraint("Horizontal", 2))
sketch4.addConstraint(Sketcher.Constraint("Vertical", 3))
sketch4.addConstraint(Sketcher.Constraint("Horizontal", 4))
sketch4.addConstraint(Sketcher.Constraint("Vertical", 5))
sketch4.addConstraint(Sketcher.Constraint("Horizontal", 6))
sketch4.addConstraint(Sketcher.Constraint("Vertical", 7))
sketch4.addConstraint(Sketcher.Constraint("Symmetric", 2, 2, 3, 2, -1, 1))
sketch4.addConstraint(Sketcher.Constraint("Symmetric", 0, 2, 4, 2, -1, 1))
sketch4.addConstraint(Sketcher.Constraint("Horizontal", 3, 2, 5, 2))
sketch4.addConstraint(Sketcher.Constraint("DistanceX", 0, 2, 0, 1, 100.0))
sketch4.addConstraint(Sketcher.Constraint("DistanceY", 1, 2, 1, 1, 60.0))
sketch4.addConstraint(Sketcher.Constraint("DistanceX", 4, 1, 4, 2, 21.337))
sketch4.setExpression("Constraints[19]", "Params.sketch4_width")
sketch4.setExpression("Constraints[20]", "Params.sketch4_height")
pocket2 = doc.addObject("PartDesign::Pocket", "Pocket001")
body.addObject(pocket2)
pocket2.Profile = sketch4
pocket2.setExpression("Length", "Params.pocket2_length")

doc.recompute()
